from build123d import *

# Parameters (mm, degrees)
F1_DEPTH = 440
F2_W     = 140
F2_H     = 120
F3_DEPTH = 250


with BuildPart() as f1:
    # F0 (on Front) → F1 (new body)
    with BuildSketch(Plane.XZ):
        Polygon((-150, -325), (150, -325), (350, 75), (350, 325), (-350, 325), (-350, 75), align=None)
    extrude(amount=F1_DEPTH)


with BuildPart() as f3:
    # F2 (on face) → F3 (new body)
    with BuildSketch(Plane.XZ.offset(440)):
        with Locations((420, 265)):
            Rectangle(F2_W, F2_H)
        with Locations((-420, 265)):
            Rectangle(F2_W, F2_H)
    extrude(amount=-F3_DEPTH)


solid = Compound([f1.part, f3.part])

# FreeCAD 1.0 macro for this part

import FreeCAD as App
import Part
import Sketcher

doc = App.newDocument("Part")
body = doc.addObject("PartDesign::Body", "Body")

sketch1 = doc.addObject("Sketcher::SketchObject", "Sketch")
body.addObject(sketch1)
sketch1.AttachmentSupport = (doc.XZ_Plane, [""])
sketch1.MapMode = "FlatFace"
sketch1.addGeometry(Part.LineSegment(App.Vector(-150, -325, 0), App.Vector(150, -325, 0)), False)
sketch1.addGeometry(Part.LineSegment(App.Vector(150, -325, 0), App.Vector(350, 75, 0)), False)
sketch1.addGeometry(Part.LineSegment(App.Vector(350, 75, 0), App.Vector(350, 325, 0)), False)
sketch1.addGeometry(Part.LineSegment(App.Vector(350, 325, 0), App.Vector(-350, 325, 0)), False)
sketch1.addGeometry(Part.LineSegment(App.Vector(-350, 325, 0), App.Vector(-350, 75, 0)), False)
sketch1.addGeometry(Part.LineSegment(App.Vector(-350, 75, 0), App.Vector(-150, -325, 0)), False)
sketch1.addConstraint(Sketcher.Constraint("Coincident", 0, 2, 1, 1))
sketch1.addConstraint(Sketcher.Constraint("Coincident", 1, 2, 2, 1))
sketch1.addConstraint(Sketcher.Constraint("Coincident", 2, 2, 3, 1))
sketch1.addConstraint(Sketcher.Constraint("Coincident", 3, 2, 4, 1))
sketch1.addConstraint(Sketcher.Constraint("Coincident", 4, 2, 5, 1))
sketch1.addConstraint(Sketcher.Constraint("Coincident", 5, 2, 0, 1))
sketch1.addConstraint(Sketcher.Constraint("Horizontal", 0))
sketch1.addConstraint(Sketcher.Constraint("Vertical", 2))
sketch1.addConstraint(Sketcher.Constraint("Horizontal", 3))
sketch1.addConstraint(Sketcher.Constraint("Vertical", 4))
sketch1.addConstraint(Sketcher.Constraint("Symmetric", 1, 2, 4, 2, -2))
sketch1.addConstraint(Sketcher.Constraint("Equal", 1, 5))
sketch1.addConstraint(Sketcher.Constraint("DistanceX", 0, 1, 0, 2, 300.0))
sketch1.addConstraint(Sketcher.Constraint("DistanceX", 3, 2, 3, 1, 700.0))
sketch1.addConstraint(Sketcher.Constraint("DistanceY", 2, 1, 2, 2, 250.0))
sketch1.addConstraint(Sketcher.Constraint("DistanceY", 0, 2, -1, 1, 325.0))
sketch1.addConstraint(Sketcher.Constraint("DistanceY", -1, 1, 1, 2, 75.0))
pad1 = doc.addObject("PartDesign::Pad", "Pad")
body.addObject(pad1)
pad1.Profile = sketch1
pad1.Length = 440
body2 = doc.addObject("PartDesign::Body", "Body001")
body2.AllowCompound = True

sketch2 = doc.addObject("Sketcher::SketchObject", "Sketch001")
body2.addObject(sketch2)
sketch2.AttachmentSupport = (doc.getObject("XZ_Plane001"), [""])
sketch2.MapMode = "FlatFace"
sketch2.AttachmentOffset = App.Placement(App.Vector(0, 0, 440), App.Rotation())
sketch2.addGeometry(Part.LineSegment(App.Vector(350, 325, 0), App.Vector(350, 205, 0)), False)
sketch2.addGeometry(Part.LineSegment(App.Vector(350, 205, 0), App.Vector(490, 205, 0)), False)
sketch2.addGeometry(Part.LineSegment(App.Vector(490, 205, 0), App.Vector(490, 325, 0)), False)
sketch2.addGeometry(Part.LineSegment(App.Vector(490, 325, 0), App.Vector(350, 325, 0)), False)
sketch2.addGeometry(Part.LineSegment(App.Vector(-490, 325, 0), App.Vector(-490, 205, 0)), False)
sketch2.addGeometry(Part.LineSegment(App.Vector(-490, 205, 0), App.Vector(-350, 205, 0)), False)
sketch2.addGeometry(Part.LineSegment(App.Vector(-350, 205, 0), App.Vector(-350, 325, 0)), False)
sketch2.addGeometry(Part.LineSegment(App.Vector(-350, 325, 0), App.Vector(-490, 325, 0)), False)
sketch2.addConstraint(Sketcher.Constraint("Coincident", 0, 2, 1, 1))
sketch2.addConstraint(Sketcher.Constraint("Coincident", 1, 2, 2, 1))
sketch2.addConstraint(Sketcher.Constraint("Coincident", 2, 2, 3, 1))
sketch2.addConstraint(Sketcher.Constraint("Coincident", 3, 2, 0, 1))
sketch2.addConstraint(Sketcher.Constraint("Coincident", 4, 2, 5, 1))
sketch2.addConstraint(Sketcher.Constraint("Coincident", 5, 2, 6, 1))
sketch2.addConstraint(Sketcher.Constraint("Coincident", 6, 2, 7, 1))
sketch2.addConstraint(Sketcher.Constraint("Coincident", 7, 2, 4, 1))
sketch2.addConstraint(Sketcher.Constraint("Vertical", 0))
sketch2.addConstraint(Sketcher.Constraint("Horizontal", 1))
sketch2.addConstraint(Sketcher.Constraint("Vertical", 2))
sketch2.addConstraint(Sketcher.Constraint("Horizontal", 3))
sketch2.addConstraint(Sketcher.Constraint("Vertical", 4))
sketch2.addConstraint(Sketcher.Constraint("Horizontal", 5))
sketch2.addConstraint(Sketcher.Constraint("Vertical", 6))
sketch2.addConstraint(Sketcher.Constraint("Horizontal", 7))
sketch2.addConstraint(Sketcher.Constraint("Symmetric", 1, 2, 4, 2, -2))
sketch2.addConstraint(Sketcher.Constraint("Symmetric", 3, 2, 6, 2, -2))
sketch2.addConstraint(Sketcher.Constraint("DistanceX", 1, 1, 1, 2, 140.0))
sketch2.addConstraint(Sketcher.Constraint("DistanceY", 0, 2, 0, 1, 120.0))
sketch2.addConstraint(Sketcher.Constraint("DistanceX", -1, 1, 0, 2, 350.0))
sketch2.addConstraint(Sketcher.Constraint("DistanceY", -1, 1, 0, 2, 205.0))
pad2 = doc.addObject("PartDesign::Pad", "Pad001")
body2.addObject(pad2)
pad2.Profile = sketch2
pad2.Length = 250
pad2.Reversed = True

doc.recompute()
